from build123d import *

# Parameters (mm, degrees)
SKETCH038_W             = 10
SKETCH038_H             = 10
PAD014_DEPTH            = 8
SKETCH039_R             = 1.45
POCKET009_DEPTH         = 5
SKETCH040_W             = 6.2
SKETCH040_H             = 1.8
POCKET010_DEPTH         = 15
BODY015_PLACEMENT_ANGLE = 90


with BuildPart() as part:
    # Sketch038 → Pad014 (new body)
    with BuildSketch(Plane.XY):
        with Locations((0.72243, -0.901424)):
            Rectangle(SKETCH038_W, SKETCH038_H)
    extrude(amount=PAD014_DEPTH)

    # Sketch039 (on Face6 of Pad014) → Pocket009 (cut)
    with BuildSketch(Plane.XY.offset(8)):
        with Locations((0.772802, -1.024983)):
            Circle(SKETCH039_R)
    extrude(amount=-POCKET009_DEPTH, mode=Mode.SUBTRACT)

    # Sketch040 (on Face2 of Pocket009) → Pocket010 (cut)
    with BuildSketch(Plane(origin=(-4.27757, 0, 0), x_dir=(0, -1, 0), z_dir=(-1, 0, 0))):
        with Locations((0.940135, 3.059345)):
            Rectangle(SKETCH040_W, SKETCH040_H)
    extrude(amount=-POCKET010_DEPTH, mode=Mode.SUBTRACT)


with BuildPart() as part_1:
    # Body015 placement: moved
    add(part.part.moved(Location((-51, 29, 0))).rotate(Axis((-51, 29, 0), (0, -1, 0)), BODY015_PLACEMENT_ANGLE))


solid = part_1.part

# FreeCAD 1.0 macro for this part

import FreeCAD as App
import Part
import Sketcher


def add_polygon(sketch, points):
    """Adds a closed chain of lines whose ends are joined by coincident constraints."""
    first, n = sketch.GeometryCount, len(points)
    for a, b in zip(points, points[1:] + points[:1]):
        sketch.addGeometry(Part.LineSegment(App.Vector(*a, 0), App.Vector(*b, 0)), False)
    for i in range(n):
        sketch.addConstraint(Sketcher.Constraint("Coincident", first + i, 2, first + (i + 1) % n, 1))

doc = App.newDocument("Part")
body = doc.addObject("PartDesign::Body", "Body")

# Sketch on XY plane
sketch1 = body.newObject("Sketcher::SketchObject", "Sketch")
sketch1.AttachmentSupport = (doc.getObject("XY_Plane"), [""])
sketch1.MapMode = "FlatFace"
add_polygon(sketch1, [(-4.27757, 4.098576), (-4.27757, -5.901424), (5.72243, -5.901424), (5.72243, 4.098576)])  # lines 0-3
sketch1.addConstraint(Sketcher.Constraint("Vertical", 0))
sketch1.addConstraint(Sketcher.Constraint("Horizontal", 1))
sketch1.addConstraint(Sketcher.Constraint("Vertical", 2))
sketch1.addConstraint(Sketcher.Constraint("Horizontal", 3))
sketch1.addConstraint(Sketcher.Constraint("Equal", 3, 0))
sketch1.addConstraint(Sketcher.Constraint("DistanceX", 1, 1, 1, 2, 10.0))
sketch1.addConstraint(Sketcher.Constraint("DistanceX", 0, 2, -1, 1, 4.27757))
sketch1.addConstraint(Sketcher.Constraint("DistanceY", 0, 2, -1, 1, 5.901424))
pad1 = body.newObject("PartDesign::Pad", "Pad")
pad1.Profile = sketch1
pad1.Length = 8

# Sketch on XY plane
sketch2 = body.newObject("Sketcher::SketchObject", "Sketch001")
sketch2.AttachmentSupport = (doc.getObject("XY_Plane"), [""])
sketch2.MapMode = "FlatFace"
sketch2.AttachmentOffset = App.Placement(App.Vector(0, 0, 8), App.Rotation())
sketch2.addGeometry(Part.Circle(App.Vector(0.772802, -1.024983, 0), App.Vector(0, 0, 1), 1.45), False)
sketch2.addConstraint(Sketcher.Constraint("Diameter", 0, 2.9))
sketch2.addConstraint(Sketcher.Constraint("DistanceX", -1, 1, 0, 3, 0.772802))
sketch2.addConstraint(Sketcher.Constraint("DistanceY", 0, 3, -1, 1, 1.024983))
pocket1 = body.newObject("PartDesign::Pocket", "Pocket")
pocket1.Profile = sketch2
pocket1.Length = 5

# Sketch on YZ plane
sketch3 = body.newObject("Sketcher::SketchObject", "Sketch002")
sketch3.AttachmentSupport = (doc.getObject("YZ_Plane"), [""])
sketch3.MapMode = "FlatFace"
sketch3.AttachmentOffset = App.Placement(App.Vector(0, 0, -4.27757), App.Rotation())
add_polygon(sketch3, [(2.159865, 3.959345), (2.159865, 2.159345), (-4.040135, 2.159345), (-4.040135, 3.959345)])  # lines 0-3
sketch3.addConstraint(Sketcher.Constraint("Vertical", 0))
sketch3.addConstraint(Sketcher.Constraint("Horizontal", 1))
sketch3.addConstraint(Sketcher.Constraint("Vertical", 2))
sketch3.addConstraint(Sketcher.Constraint("Horizontal", 3))
sketch3.addConstraint(Sketcher.Constraint("DistanceX", 1, 2, 1, 1, 6.2))
sketch3.addConstraint(Sketcher.Constraint("DistanceY", 0, 2, 0, 1, 1.8))
sketch3.addConstraint(Sketcher.Constraint("DistanceX", -1, 1, 0, 2, 2.159865))
sketch3.addConstraint(Sketcher.Constraint("DistanceY", -1, 1, 0, 2, 2.159345))
pocket2 = body.newObject("PartDesign::Pocket", "Pocket001")
pocket2.Profile = sketch3
pocket2.Length = 15
pocket2.Reversed = True
body2 = doc.addObject("PartDesign::Body", "Body001")
doc.recompute()

body.Placement = App.Placement(App.Vector(-51, 29, 0), App.Rotation(App.Vector(0, -1, 0), 90))
boolean = body2.newObject("PartDesign::Boolean", "Boolean")
boolean.Type = "Fuse"
boolean.addObjects([body])

doc.recompute()
